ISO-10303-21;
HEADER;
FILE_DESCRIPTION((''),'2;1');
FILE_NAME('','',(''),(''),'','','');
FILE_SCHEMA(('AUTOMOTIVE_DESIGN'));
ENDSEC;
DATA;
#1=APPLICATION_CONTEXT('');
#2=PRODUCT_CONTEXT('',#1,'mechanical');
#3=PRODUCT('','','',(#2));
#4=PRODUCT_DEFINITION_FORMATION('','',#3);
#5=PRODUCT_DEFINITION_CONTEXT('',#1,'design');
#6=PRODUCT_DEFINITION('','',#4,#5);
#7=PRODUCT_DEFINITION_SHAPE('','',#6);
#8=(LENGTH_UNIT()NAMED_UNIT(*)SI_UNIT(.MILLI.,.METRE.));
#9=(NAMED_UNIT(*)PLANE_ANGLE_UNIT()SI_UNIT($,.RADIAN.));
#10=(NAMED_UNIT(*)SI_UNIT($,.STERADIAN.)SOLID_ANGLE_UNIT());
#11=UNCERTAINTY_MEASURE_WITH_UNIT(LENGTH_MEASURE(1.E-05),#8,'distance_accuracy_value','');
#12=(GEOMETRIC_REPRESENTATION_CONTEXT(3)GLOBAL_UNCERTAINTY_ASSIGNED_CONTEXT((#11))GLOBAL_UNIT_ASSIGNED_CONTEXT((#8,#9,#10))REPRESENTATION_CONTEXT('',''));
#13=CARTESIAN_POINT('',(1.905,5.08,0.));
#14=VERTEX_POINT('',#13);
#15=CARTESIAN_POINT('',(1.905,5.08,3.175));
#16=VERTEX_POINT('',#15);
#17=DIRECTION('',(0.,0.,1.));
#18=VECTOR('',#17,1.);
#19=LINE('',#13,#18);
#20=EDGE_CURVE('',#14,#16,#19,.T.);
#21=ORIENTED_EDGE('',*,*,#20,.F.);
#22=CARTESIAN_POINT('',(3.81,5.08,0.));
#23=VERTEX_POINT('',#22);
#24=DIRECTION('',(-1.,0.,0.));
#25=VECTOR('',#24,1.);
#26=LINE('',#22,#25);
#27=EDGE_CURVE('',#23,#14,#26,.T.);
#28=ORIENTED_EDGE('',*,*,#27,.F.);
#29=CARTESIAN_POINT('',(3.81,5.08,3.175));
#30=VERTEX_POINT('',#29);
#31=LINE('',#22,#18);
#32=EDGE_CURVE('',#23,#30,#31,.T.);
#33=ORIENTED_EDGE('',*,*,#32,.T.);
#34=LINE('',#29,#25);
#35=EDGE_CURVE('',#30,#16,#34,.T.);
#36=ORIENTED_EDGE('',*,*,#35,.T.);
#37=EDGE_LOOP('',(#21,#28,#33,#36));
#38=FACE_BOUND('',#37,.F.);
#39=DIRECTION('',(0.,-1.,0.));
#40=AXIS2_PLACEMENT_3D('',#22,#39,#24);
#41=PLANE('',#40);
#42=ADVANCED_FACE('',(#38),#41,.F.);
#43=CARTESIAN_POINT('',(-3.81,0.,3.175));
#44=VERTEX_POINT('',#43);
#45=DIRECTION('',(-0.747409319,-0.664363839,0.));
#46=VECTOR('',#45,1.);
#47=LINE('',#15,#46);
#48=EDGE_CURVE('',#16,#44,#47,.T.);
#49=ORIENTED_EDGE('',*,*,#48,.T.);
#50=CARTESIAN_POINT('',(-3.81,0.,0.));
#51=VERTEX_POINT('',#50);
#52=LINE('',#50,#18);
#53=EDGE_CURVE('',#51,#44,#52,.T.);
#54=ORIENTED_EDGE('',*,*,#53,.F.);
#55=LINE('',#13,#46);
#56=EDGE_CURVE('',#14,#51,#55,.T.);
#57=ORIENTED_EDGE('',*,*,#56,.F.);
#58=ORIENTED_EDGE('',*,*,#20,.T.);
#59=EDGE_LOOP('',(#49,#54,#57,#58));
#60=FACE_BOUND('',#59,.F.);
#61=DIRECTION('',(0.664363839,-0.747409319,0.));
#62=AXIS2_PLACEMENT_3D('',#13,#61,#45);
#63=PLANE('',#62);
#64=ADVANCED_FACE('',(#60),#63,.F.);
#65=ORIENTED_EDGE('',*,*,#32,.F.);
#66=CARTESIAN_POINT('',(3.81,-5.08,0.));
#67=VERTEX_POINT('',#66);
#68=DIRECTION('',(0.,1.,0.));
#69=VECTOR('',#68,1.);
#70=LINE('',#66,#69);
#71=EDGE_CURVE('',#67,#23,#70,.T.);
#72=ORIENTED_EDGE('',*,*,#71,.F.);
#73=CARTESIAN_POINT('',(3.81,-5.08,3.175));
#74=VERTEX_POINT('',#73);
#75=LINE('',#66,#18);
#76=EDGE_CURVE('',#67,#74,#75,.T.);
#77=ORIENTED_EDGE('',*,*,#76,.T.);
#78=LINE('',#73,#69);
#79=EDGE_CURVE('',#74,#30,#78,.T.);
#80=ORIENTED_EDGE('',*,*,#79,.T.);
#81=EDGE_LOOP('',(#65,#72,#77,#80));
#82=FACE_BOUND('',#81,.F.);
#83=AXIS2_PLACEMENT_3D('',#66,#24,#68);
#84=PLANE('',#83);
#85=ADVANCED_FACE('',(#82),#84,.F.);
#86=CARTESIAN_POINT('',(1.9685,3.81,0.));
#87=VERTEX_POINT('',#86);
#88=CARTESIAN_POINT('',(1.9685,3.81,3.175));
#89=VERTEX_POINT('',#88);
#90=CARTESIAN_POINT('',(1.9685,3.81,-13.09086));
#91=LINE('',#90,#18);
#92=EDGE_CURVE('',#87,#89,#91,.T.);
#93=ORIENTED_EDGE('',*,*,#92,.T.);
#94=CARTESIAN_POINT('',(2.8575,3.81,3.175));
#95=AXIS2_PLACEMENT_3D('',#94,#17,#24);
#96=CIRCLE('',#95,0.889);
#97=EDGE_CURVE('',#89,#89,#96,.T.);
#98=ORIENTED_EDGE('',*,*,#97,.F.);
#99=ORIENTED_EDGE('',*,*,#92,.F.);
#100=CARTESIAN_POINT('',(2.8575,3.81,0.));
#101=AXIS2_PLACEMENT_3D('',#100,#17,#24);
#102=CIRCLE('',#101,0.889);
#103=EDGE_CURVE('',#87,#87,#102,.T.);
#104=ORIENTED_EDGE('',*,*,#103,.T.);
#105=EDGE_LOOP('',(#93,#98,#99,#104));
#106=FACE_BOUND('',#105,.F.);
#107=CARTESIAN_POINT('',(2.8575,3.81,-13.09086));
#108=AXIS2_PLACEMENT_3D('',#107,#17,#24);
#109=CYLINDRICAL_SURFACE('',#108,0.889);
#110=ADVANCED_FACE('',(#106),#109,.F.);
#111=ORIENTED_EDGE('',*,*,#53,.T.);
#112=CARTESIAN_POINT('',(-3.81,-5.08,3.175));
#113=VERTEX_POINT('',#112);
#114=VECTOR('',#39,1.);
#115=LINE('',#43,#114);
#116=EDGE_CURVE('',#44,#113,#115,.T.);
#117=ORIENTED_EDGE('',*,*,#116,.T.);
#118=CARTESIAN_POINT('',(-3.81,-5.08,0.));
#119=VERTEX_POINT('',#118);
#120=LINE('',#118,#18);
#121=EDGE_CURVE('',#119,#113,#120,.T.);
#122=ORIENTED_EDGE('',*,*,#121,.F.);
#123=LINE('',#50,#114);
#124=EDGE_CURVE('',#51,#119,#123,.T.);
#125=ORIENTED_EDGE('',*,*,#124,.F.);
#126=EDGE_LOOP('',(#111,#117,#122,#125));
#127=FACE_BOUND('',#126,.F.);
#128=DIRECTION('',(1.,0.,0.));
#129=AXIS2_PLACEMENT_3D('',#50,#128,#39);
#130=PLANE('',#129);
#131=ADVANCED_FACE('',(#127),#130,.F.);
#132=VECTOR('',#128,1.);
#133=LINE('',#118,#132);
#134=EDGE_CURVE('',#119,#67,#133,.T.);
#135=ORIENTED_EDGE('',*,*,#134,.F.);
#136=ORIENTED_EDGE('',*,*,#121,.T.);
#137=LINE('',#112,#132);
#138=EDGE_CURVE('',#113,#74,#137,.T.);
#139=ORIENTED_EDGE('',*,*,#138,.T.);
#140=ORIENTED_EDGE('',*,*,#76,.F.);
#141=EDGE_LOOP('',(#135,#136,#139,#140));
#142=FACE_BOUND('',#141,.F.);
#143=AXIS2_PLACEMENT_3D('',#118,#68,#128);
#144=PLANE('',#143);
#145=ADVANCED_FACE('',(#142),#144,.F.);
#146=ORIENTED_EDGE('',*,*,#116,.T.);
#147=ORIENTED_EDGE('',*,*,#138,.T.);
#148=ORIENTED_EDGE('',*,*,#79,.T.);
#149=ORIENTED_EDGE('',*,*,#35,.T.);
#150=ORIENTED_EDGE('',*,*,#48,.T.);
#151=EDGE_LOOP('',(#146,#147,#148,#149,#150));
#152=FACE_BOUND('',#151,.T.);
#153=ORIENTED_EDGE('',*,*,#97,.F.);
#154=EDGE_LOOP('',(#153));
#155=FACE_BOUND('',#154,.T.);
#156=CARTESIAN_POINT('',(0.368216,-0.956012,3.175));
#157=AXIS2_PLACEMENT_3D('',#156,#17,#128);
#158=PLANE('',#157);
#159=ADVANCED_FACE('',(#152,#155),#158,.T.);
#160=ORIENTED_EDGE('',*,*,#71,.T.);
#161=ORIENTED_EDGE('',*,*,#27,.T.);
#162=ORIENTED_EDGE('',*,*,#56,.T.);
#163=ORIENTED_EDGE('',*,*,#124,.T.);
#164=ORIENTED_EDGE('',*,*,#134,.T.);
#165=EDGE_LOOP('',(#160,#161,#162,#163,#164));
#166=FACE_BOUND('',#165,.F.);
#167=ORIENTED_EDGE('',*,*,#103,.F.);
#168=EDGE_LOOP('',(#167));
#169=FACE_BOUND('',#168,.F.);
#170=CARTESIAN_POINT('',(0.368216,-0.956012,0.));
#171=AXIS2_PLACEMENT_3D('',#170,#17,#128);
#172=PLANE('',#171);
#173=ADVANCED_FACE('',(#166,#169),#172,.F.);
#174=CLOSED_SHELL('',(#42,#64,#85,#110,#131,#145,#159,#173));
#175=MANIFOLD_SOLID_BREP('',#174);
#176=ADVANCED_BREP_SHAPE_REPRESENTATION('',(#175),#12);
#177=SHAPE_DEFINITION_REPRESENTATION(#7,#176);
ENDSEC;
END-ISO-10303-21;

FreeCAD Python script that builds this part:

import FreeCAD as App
import Part
import Sketcher
Q = App.Units.Quantity


def add_polygon(sketch, points):
    """Adds a closed chain of lines whose ends are joined by coincident constraints."""
    first, n = sketch.GeometryCount, len(points)
    for a, b in zip(points, points[1:] + points[:1]):
        sketch.addGeometry(Part.LineSegment(App.Vector(*a, 0), App.Vector(*b, 0)), False)
    for i in range(n):
        sketch.addConstraint(Sketcher.Constraint("Coincident", first + i, 2, first + (i + 1) % n, 1))

doc = App.newDocument("Part")
body = doc.addObject("PartDesign::Body", "Body")

# Sketch on XY plane
sketch1 = body.newObject("Sketcher::SketchObject", "Sketch")
sketch1.AttachmentSupport = (doc.getObject("XY_Plane"), [""])
sketch1.MapMode = "FlatFace"
add_polygon(sketch1, [(-3.81, -5.08), (3.81, -5.08), (3.81, 5.08), (1.905, 5.08), (-3.81, 0)])  # lines 0-4
sketch1.addConstraint(Sketcher.Constraint("Horizontal", 0))
sketch1.addConstraint(Sketcher.Constraint("Vertical", 1))
sketch1.addConstraint(Sketcher.Constraint("Horizontal", 2))
sketch1.addConstraint(Sketcher.Constraint("Vertical", 4))
sketch1.addConstraint(Sketcher.Constraint("Symmetric", 1, 2, 4, 2, -1, 1))
sketch1.addConstraint(Sketcher.Constraint("PointOnObject", 3, 2, -1))
sketch1.addConstraint(Sketcher.Constraint("DistanceX", 0, 1, 0, 2, Q("0.3 in")))
sketch1.addConstraint(Sketcher.Constraint("DistanceY", 1, 1, 1, 2, Q("0.4 in")))
sketch1.addConstraint(Sketcher.Constraint("DistanceX", 2, 2, 2, 1, Q("0.075 in")))
pad1 = body.newObject("PartDesign::Pad", "Pad")
pad1.Profile = sketch1
pad1.Length = Q("0.125 in")

# Sketch on XY plane
sketch2 = body.newObject("Sketcher::SketchObject", "Sketch001")
sketch2.AttachmentSupport = (doc.getObject("XY_Plane"), [""])
sketch2.MapMode = "FlatFace"
sketch2.addGeometry(Part.Circle(App.Vector(2.8575, 3.81, 0), App.Vector(0, 0, 1), 0.889), False)
sketch2.addConstraint(Sketcher.Constraint("Diameter", 0, Q("0.07 in")))
sketch2.addConstraint(Sketcher.Constraint("DistanceY", -1, 1, 0, 3, Q("0.15 in")))
sketch2.addConstraint(Sketcher.Constraint("DistanceX", -1, 1, 0, 3, Q("0.1125 in")))
doc.recompute()
hole = body.newObject("PartDesign::Hole", "Hole")
hole.Profile = sketch2
hole.ThreadType = "None"
hole.Diameter = Q("0.07 in")
hole.DepthType = "ThroughAll"
hole.Reversed = True

doc.recompute()
